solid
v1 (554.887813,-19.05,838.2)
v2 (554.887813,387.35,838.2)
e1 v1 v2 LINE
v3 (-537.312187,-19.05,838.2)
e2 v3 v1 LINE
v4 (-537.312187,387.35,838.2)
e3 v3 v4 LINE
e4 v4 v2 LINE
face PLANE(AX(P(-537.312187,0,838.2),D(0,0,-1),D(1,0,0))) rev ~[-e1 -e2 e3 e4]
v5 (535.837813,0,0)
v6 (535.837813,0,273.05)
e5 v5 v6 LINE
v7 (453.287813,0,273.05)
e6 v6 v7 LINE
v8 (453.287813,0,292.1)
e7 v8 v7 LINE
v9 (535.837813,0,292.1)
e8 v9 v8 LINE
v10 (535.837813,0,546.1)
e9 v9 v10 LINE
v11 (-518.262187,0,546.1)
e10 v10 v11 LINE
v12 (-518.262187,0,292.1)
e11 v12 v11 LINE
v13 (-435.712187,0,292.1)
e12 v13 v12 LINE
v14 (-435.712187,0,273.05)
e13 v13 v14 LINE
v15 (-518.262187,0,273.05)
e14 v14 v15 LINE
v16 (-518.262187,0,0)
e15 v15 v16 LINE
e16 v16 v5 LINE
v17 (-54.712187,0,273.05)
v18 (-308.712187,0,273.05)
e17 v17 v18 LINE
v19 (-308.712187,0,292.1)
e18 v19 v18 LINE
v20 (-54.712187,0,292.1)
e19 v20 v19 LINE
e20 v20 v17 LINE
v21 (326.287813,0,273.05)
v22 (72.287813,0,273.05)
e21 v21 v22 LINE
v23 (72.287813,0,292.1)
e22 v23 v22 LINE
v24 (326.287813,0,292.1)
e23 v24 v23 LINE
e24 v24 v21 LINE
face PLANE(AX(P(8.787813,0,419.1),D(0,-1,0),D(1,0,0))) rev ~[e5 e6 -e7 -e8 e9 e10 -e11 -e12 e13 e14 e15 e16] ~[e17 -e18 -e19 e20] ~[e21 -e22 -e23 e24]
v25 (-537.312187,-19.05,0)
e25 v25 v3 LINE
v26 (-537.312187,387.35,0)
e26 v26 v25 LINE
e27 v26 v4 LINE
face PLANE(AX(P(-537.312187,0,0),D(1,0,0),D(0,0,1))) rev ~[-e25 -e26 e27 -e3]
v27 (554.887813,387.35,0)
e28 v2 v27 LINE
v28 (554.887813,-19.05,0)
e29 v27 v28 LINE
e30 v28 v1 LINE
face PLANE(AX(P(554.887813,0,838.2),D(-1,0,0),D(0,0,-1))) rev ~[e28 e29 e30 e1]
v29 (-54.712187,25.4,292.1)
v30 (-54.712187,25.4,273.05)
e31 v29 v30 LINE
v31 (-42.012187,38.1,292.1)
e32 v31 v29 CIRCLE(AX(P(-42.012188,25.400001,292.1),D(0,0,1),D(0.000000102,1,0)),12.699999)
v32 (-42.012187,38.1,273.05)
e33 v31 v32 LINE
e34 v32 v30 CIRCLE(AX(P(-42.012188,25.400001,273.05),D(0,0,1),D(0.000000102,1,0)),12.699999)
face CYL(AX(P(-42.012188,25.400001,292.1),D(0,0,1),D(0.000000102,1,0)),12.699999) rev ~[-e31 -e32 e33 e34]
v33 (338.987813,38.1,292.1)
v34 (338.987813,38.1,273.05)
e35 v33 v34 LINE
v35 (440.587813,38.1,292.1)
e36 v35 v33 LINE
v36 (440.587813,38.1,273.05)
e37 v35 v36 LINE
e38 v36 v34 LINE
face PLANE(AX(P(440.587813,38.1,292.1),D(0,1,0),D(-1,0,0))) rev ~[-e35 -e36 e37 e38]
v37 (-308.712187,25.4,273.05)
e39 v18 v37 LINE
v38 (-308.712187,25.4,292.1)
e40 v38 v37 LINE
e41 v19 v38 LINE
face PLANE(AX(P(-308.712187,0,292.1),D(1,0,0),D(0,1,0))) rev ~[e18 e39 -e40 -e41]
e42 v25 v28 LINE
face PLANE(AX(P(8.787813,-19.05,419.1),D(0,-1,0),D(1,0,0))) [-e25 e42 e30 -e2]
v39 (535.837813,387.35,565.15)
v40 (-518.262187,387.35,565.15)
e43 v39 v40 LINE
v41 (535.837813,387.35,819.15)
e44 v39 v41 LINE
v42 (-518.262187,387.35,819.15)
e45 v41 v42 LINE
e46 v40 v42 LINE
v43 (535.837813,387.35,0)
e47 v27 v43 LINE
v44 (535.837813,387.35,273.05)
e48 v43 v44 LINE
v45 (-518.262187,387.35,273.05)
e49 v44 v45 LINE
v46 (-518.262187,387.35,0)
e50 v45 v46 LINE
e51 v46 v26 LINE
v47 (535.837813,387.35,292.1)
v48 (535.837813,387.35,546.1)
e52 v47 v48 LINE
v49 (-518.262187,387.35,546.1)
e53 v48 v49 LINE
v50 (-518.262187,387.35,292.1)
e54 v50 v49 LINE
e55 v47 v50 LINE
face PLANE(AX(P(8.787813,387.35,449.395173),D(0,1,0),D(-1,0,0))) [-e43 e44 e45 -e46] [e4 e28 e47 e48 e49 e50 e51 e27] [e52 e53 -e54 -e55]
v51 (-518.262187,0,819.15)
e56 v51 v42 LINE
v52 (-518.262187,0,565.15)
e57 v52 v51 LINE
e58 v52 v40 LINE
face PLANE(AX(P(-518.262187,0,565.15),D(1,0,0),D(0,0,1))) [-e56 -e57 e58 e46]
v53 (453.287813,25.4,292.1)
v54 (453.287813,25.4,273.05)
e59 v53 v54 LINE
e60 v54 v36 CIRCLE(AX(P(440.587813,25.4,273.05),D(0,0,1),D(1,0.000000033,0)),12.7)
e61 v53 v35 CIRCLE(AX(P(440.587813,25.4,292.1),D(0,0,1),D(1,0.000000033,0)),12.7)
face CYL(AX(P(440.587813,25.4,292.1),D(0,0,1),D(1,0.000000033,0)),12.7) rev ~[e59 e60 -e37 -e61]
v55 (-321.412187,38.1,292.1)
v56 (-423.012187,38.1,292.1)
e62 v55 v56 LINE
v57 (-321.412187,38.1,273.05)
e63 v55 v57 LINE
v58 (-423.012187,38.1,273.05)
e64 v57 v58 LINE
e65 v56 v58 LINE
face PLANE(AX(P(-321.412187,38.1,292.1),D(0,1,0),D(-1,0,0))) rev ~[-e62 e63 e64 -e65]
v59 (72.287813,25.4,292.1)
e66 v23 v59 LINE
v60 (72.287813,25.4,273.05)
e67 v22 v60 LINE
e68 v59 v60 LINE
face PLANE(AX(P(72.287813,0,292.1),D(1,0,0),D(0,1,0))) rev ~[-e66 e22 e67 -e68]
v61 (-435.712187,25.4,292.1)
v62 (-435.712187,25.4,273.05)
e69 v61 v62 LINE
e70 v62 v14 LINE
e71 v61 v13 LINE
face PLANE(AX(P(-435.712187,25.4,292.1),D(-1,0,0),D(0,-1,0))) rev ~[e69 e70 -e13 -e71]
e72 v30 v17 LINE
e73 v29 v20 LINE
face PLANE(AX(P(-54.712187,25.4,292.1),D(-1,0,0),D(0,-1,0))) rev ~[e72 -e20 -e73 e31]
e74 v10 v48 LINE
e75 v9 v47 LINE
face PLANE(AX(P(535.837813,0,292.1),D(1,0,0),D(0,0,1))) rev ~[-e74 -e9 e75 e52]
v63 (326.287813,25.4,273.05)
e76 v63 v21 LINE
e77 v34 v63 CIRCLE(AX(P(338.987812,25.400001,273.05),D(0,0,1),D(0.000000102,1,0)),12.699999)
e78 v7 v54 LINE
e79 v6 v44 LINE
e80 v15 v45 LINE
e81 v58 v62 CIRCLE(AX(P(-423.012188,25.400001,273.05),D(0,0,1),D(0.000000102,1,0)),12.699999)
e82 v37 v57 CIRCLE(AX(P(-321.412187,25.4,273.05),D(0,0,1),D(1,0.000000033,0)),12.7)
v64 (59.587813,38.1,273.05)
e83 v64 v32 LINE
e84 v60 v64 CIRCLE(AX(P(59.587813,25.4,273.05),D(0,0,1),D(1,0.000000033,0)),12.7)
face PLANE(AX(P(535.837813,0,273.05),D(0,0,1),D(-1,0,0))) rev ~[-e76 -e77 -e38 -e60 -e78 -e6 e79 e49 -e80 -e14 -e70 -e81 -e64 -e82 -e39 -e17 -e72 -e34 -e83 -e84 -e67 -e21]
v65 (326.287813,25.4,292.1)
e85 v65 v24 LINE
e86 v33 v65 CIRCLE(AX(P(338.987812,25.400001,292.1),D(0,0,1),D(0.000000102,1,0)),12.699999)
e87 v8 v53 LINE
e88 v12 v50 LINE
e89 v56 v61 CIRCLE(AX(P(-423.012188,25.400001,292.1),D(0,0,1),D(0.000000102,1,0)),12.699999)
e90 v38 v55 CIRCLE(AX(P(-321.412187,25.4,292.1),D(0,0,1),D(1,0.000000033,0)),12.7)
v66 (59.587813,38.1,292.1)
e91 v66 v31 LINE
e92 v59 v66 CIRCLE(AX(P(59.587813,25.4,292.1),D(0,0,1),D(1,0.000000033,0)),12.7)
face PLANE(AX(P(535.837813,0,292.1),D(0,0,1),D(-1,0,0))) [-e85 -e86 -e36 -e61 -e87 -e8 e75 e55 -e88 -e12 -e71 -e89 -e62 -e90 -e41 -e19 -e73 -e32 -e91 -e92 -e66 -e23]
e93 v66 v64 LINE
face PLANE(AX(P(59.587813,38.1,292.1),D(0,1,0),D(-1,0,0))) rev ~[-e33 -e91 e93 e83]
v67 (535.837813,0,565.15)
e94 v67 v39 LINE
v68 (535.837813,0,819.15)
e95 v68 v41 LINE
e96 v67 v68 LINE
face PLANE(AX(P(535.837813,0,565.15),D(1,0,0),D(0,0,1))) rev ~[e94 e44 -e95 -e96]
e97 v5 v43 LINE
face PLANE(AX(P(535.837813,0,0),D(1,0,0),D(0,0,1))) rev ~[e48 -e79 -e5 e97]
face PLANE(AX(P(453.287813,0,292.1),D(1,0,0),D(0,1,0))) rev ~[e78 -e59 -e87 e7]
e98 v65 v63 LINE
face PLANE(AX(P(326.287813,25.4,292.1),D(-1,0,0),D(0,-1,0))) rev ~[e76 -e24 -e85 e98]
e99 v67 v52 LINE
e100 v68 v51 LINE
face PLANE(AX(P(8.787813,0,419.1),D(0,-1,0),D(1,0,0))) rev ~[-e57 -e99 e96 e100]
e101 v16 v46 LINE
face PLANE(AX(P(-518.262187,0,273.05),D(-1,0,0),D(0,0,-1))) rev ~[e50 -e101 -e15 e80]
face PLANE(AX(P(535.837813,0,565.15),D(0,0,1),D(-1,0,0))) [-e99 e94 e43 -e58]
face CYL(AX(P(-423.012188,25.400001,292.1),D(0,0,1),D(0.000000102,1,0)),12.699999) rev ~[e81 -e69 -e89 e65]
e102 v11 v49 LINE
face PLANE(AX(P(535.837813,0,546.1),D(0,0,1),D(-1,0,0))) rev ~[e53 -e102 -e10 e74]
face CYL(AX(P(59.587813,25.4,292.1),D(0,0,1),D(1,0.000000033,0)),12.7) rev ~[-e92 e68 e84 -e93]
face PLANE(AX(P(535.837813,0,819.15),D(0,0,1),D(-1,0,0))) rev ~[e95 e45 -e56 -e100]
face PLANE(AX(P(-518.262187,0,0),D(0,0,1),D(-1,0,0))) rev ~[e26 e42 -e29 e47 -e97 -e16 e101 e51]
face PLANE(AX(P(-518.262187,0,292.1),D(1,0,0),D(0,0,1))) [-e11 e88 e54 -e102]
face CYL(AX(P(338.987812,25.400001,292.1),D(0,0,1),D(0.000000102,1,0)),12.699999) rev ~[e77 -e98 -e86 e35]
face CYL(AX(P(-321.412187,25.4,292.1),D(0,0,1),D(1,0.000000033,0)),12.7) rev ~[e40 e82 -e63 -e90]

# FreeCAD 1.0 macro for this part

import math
import FreeCAD as App
import Part
import Sketcher
from FreeCAD import Vector
Q = App.Units.Quantity


def add_polygon(sketch, points):
    """Adds a closed chain of lines whose ends are joined by coincident constraints."""
    first, n = sketch.GeometryCount, len(points)
    for a, b in zip(points, points[1:] + points[:1]):
        sketch.addGeometry(Part.LineSegment(App.Vector(*a, 0), App.Vector(*b, 0)), False)
    for i in range(n):
        sketch.addConstraint(Sketcher.Constraint("Coincident", first + i, 2, first + (i + 1) % n, 1))

doc = App.newDocument("Part")
body = doc.addObject("PartDesign::Body", "Body")

# Sketch on XZ plane
sketch1 = body.newObject("Sketcher::SketchObject", "Sketch")
sketch1.AttachmentSupport = (doc.getObject("XZ_Plane"), [""])
sketch1.MapMode = "FlatFace"
add_polygon(sketch1, [(-537, 838), (-537, 0), (555, 0), (555, 838)])  # lines 0-3
sketch1.addConstraint([
    Sketcher.Constraint("Vertical", 0),
    Sketcher.Constraint("Horizontal", 1),
    Sketcher.Constraint("Vertical", 2),
    Sketcher.Constraint("Horizontal", 3),
    Sketcher.Constraint("PointOnObject", 0, 2, -1),
    Sketcher.Constraint("DistanceX", 1, 1, 1, 2, Q("43 in")),
    Sketcher.Constraint("DistanceY", 0, 2, 0, 1, Q("33 in")),
    Sketcher.Constraint("DistanceX", 0, 2, -1, 1, 537.312187),
])
pad1 = body.newObject("PartDesign::Pad", "Pad")
pad1.Profile = sketch1
pad1.Length = Q("0.75 in")

# Sketch on XZ plane
sketch2 = body.newObject("Sketcher::SketchObject", "Sketch001")
sketch2.AttachmentSupport = (doc.getObject("XZ_Plane"), [""])
sketch2.MapMode = "FlatFace"
add_polygon(sketch2, [(-537, 0), (-537, 838), (555, 838), (555, 0), (536, 0), (536, 273), (-518, 273), (-518, 0)])  # lines 0-7
add_polygon(sketch2, [(-518, 292), (536, 292), (536, 546), (-518, 546)])  # lines 8-11
add_polygon(sketch2, [(-518, 565), (536, 565), (536, 819), (-518, 819)])  # lines 12-15
sketch2.addConstraint([
    Sketcher.Constraint("Vertical", 0),
    Sketcher.Constraint("Horizontal", 1),
    Sketcher.Constraint("Vertical", 2),
    Sketcher.Constraint("Horizontal", 3),
    Sketcher.Constraint("Vertical", 4),
    Sketcher.Constraint("Horizontal", 5),
    Sketcher.Constraint("Vertical", 6),
    Sketcher.Constraint("Horizontal", 7),
    Sketcher.Constraint("Horizontal", 8),
    Sketcher.Constraint("Vertical", 9),
    Sketcher.Constraint("Horizontal", 10),
    Sketcher.Constraint("Vertical", 11),
    Sketcher.Constraint("Horizontal", 12),
    Sketcher.Constraint("Vertical", 13),
    Sketcher.Constraint("Horizontal", 14),
    Sketcher.Constraint("Vertical", 15),
    Sketcher.Constraint("PointOnObject", 2, 2, -1),
    Sketcher.Constraint("PointOnObject", 6, 2, -1),
    Sketcher.Constraint("Vertical", 4, 2, 8, 2),
    Sketcher.Constraint("Vertical", 6, 2, 10, 2),
    Sketcher.Constraint("Vertical", 9, 2, 12, 2),
    Sketcher.Constraint("Vertical", 11, 2, 14, 2),
    Sketcher.Constraint("Equal", 3, 7),
    Sketcher.Constraint("Equal", 11, 13),
    Sketcher.Constraint("DistanceX", 1, 1, 1, 2, Q("43 in")),
    Sketcher.Constraint("DistanceY", 0, 1, 0, 2, Q("33 in")),
    Sketcher.Constraint("DistanceY", 9, 1, 9, 2, Q("10 in")),
    Sketcher.Constraint("DistanceX", 5, 2, 5, 1, Q("41.5 in")),
    Sketcher.Constraint("DistanceY", 4, 1, 4, 2, Q("10.75 in")),
    Sketcher.Constraint("DistanceY", -1, 1, 8, 2, Q("11.5 in")),
    Sketcher.Constraint("DistanceY", 4, 2, 12, 2, Q("11.5 in")),
    Sketcher.Constraint("DistanceX", 0, 2, -1, 1, 537.312187),
])
pad2 = body.newObject("PartDesign::Pad", "Pad001")
pad2.Profile = sketch2
pad2.Length = Q("15.25 in")
pad2.Reversed = True

# Sketch on XY plane
sketch3 = body.newObject("Sketcher::SketchObject", "Sketch002")
sketch3.AttachmentSupport = (doc.getObject("XY_Plane"), [""])
sketch3.MapMode = "FlatFace"
sketch3.AttachmentOffset = App.Placement(Vector(0, 0, 11.5 * 25.4), App.Rotation())
sketch3.addGeometry([
    Part.LineSegment(Vector(-436, 25, 0), Vector(-436, 0, 0)),  # 0
    Part.LineSegment(Vector(-436, 0, 0), Vector(-309, 0, 0)),  # 1
    Part.LineSegment(Vector(-309, 0, 0), Vector(-309, 25, 0)),  # 2
    Part.ArcOfCircle(Part.Circle(Vector(-321, 25, 0), Vector(0, 0, 1), 13), math.radians(0), math.radians(90)),  # 3
    Part.LineSegment(Vector(-321, 38, 0), Vector(-423, 38, 0)),  # 4
    Part.ArcOfCircle(Part.Circle(Vector(-423, 25, 0), Vector(0, 0, 1), 13), math.radians(90), math.radians(180)),  # 5
    Part.LineSegment(Vector(-55, 25, 0), Vector(-55, 0, 0)),  # 6
    Part.LineSegment(Vector(-55, 0, 0), Vector(72, 0, 0)),  # 7
    Part.LineSegment(Vector(72, 0, 0), Vector(72, 25, 0)),  # 8
    Part.ArcOfCircle(Part.Circle(Vector(60, 25, 0), Vector(0, 0, 1), 13), math.radians(0), math.radians(90)),  # 9
    Part.LineSegment(Vector(60, 38, 0), Vector(-42, 38, 0)),  # 10
    Part.ArcOfCircle(Part.Circle(Vector(-42, 25, 0), Vector(0, 0, 1), 13), math.radians(90), math.radians(180)),  # 11
    Part.LineSegment(Vector(326, 25, 0), Vector(326, 0, 0)),  # 12
    Part.LineSegment(Vector(326, 0, 0), Vector(453, 0, 0)),  # 13
    Part.LineSegment(Vector(453, 0, 0), Vector(453, 25, 0)),  # 14
    Part.ArcOfCircle(Part.Circle(Vector(441, 25, 0), Vector(0, 0, 1), 13), math.radians(0), math.radians(90)),  # 15
    Part.LineSegment(Vector(441, 38, 0), Vector(339, 38, 0)),  # 16
    Part.ArcOfCircle(Part.Circle(Vector(339, 25, 0), Vector(0, 0, 1), 13), math.radians(90), math.radians(180)),  # 17
], False)
sketch3.addConstraint([
    Sketcher.Constraint("Coincident", 0, 2, 1, 1),
    Sketcher.Constraint("Coincident", 1, 2, 2, 1),
    Sketcher.Constraint("Tangent", 2, 2, 3, 1),
    Sketcher.Constraint("Tangent", 3, 2, 4, 1),
    Sketcher.Constraint("Tangent", 4, 2, 5, 1),
    Sketcher.Constraint("Tangent", 5, 2, 0, 1),
    Sketcher.Constraint("Coincident", 6, 2, 7, 1),
    Sketcher.Constraint("Coincident", 7, 2, 8, 1),
    Sketcher.Constraint("Tangent", 8, 2, 9, 1),
    Sketcher.Constraint("Tangent", 9, 2, 10, 1),
    Sketcher.Constraint("Tangent", 10, 2, 11, 1),
    Sketcher.Constraint("Tangent", 11, 2, 6, 1),
    Sketcher.Constraint("Coincident", 12, 2, 13, 1),
    Sketcher.Constraint("Coincident", 13, 2, 14, 1),
    Sketcher.Constraint("Tangent", 14, 2, 15, 1),
    Sketcher.Constraint("Tangent", 15, 2, 16, 1),
    Sketcher.Constraint("Tangent", 16, 2, 17, 1),
    Sketcher.Constraint("Tangent", 17, 2, 12, 1),
    Sketcher.Constraint("Vertical", 0),
    Sketcher.Constraint("Horizontal", 1),
    Sketcher.Constraint("Vertical", 2),
    Sketcher.Constraint("Horizontal", 4),
    Sketcher.Constraint("Vertical", 6),
    Sketcher.Constraint("Horizontal", 7),
    Sketcher.Constraint("Vertical", 8),
    Sketcher.Constraint("Horizontal", 10),
    Sketcher.Constraint("Vertical", 12),
    Sketcher.Constraint("Horizontal", 13),
    Sketcher.Constraint("Vertical", 14),
    Sketcher.Constraint("Horizontal", 16),
    Sketcher.Constraint("Equal", 3, 5),
    Sketcher.Constraint("Equal", 5, 9),
    Sketcher.Constraint("Equal", 9, 11),
    Sketcher.Constraint("Equal", 11, 15),
    Sketcher.Constraint("Equal", 15, 17),
    Sketcher.Constraint("PointOnObject", 0, 2, -1),
    Sketcher.Constraint("PointOnObject", 6, 2, -1),
    Sketcher.Constraint("PointOnObject", 12, 2, -1),
    Sketcher.Constraint("Horizontal", 5, 3, 9, 3),
    Sketcher.Constraint("Horizontal", 11, 3, 15, 3),
    Sketcher.Constraint("Equal", 1, 7),
    Sketcher.Constraint("Equal", 7, 13),
    Sketcher.Constraint("Radius", 3, Q("0.5 in")),
    Sketcher.Constraint("DistanceX", 1, 1, 1, 2, Q("5 in")),
    Sketcher.Constraint("DistanceY", 0, 2, 0, 1, Q("1 in")),
    Sketcher.Constraint("DistanceX", 3, 3, 9, 3, Q("15 in")),
    Sketcher.Constraint("DistanceX", 9, 3, 15, 3, Q("15 in")),
    Sketcher.Constraint("DistanceX", 5, 3, -1, 1, 423.012188),
])
pocket1 = body.newObject("PartDesign::Pocket", "Pocket")
pocket1.Profile = sketch3
pocket1.Length = Q("0.75 in")

doc.recompute()
